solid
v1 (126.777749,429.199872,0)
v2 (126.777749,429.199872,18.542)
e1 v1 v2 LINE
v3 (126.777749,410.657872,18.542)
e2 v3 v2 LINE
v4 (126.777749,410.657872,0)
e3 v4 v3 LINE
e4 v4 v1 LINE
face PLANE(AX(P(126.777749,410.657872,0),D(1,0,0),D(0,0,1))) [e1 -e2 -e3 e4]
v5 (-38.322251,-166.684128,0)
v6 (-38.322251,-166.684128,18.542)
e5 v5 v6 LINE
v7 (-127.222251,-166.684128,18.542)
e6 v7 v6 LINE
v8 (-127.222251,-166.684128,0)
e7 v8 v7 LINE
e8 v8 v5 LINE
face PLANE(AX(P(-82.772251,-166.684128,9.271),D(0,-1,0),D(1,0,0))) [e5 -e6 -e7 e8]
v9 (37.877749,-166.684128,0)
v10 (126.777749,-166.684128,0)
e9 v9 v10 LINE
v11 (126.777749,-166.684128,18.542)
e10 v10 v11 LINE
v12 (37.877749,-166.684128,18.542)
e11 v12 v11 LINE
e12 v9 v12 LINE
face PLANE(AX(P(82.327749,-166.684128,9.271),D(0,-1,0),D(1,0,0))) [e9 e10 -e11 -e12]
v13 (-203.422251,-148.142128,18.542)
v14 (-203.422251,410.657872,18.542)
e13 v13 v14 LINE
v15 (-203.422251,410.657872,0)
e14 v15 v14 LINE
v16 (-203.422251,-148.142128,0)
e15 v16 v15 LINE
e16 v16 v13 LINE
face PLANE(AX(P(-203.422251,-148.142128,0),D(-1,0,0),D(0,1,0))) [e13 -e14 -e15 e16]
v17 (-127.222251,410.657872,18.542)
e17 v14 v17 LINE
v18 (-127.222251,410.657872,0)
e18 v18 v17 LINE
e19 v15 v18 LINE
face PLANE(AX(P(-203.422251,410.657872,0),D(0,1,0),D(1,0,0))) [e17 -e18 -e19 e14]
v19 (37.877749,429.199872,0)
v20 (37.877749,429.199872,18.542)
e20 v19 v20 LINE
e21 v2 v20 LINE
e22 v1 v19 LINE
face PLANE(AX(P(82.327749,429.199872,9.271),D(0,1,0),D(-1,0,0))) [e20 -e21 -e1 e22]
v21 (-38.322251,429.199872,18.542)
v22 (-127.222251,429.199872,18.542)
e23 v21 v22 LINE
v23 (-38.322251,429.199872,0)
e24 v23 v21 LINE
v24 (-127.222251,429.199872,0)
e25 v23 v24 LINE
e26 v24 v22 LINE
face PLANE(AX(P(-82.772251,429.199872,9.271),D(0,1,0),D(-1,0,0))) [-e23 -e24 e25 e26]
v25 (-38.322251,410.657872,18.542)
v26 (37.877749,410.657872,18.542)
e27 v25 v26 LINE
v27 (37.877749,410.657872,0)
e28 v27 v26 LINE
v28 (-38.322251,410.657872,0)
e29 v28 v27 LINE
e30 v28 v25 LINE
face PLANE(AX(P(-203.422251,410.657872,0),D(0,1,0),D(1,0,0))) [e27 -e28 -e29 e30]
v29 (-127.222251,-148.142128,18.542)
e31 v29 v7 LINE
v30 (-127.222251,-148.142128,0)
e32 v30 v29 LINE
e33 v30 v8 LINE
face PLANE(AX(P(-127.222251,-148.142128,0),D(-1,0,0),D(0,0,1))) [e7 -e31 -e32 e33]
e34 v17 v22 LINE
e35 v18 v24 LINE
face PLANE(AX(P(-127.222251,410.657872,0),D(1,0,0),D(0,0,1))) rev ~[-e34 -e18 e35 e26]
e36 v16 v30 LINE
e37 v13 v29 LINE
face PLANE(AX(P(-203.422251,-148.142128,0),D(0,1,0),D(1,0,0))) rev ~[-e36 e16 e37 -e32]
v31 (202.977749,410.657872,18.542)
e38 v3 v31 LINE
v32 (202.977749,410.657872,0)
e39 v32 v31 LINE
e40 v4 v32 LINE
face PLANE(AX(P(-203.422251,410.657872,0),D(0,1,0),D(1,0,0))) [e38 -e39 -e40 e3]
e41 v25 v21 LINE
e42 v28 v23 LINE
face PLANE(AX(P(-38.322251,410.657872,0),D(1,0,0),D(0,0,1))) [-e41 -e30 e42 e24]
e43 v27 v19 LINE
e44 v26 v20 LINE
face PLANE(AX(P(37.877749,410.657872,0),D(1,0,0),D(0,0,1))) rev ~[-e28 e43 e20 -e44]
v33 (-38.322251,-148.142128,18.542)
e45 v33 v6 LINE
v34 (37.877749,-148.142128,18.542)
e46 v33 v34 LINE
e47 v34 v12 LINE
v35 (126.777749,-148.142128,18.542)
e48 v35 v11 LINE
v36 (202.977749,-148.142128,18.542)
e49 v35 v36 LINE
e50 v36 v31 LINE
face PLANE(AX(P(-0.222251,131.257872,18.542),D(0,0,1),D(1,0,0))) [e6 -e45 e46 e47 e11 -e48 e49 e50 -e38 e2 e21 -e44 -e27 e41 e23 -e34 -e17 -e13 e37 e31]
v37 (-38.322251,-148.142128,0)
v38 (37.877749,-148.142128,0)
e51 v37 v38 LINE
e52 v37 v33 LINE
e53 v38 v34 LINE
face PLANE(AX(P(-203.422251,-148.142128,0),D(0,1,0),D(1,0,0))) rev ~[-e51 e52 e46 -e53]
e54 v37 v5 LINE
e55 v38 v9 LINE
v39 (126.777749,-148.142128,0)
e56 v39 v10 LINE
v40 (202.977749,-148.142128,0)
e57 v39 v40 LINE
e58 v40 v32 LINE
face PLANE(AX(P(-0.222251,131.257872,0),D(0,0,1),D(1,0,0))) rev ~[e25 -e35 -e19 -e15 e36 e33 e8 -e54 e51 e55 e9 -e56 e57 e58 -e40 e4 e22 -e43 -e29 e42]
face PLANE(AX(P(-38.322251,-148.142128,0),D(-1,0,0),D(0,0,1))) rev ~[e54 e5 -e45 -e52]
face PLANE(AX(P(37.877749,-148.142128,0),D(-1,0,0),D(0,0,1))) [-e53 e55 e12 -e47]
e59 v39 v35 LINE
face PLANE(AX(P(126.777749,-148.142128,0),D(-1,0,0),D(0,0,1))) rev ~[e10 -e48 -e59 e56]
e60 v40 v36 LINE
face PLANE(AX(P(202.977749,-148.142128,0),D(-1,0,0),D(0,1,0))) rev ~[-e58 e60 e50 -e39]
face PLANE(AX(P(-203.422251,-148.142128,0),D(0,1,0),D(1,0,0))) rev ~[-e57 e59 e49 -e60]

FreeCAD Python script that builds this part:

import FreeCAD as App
import Part
import Sketcher

V = App.Vector
Q = App.Units.Quantity

doc = App.newDocument("Part")
body = doc.addObject("PartDesign::Body", "Body")

# Sketch on XY plane
sketch1 = body.newObject("Sketcher::SketchObject", "Sketch")
sketch1.AttachmentSupport = (doc.getObject("XY_Plane"), [""])
sketch1.MapMode = "FlatFace"
sketch1.addGeometry([
    Part.LineSegment(V(-203, 411, 0), V(-203, -148, 0)),
    Part.LineSegment(V(-203, -148, 0), V(203, -148, 0)),
    Part.LineSegment(V(203, -148, 0), V(203, 411, 0)),
    Part.LineSegment(V(203, 411, 0), V(-203, 411, 0)),
], False)
sketch1.addConstraint([
    Sketcher.Constraint("Coincident", 0, 2, 1, 1),
    Sketcher.Constraint("Coincident", 1, 2, 2, 1),
    Sketcher.Constraint("Coincident", 2, 2, 3, 1),
    Sketcher.Constraint("Coincident", 3, 2, 0, 1),
    Sketcher.Constraint("Vertical", 0),
    Sketcher.Constraint("Horizontal", 1),
    Sketcher.Constraint("Vertical", 2),
    Sketcher.Constraint("Horizontal", 3),
    Sketcher.Constraint("DistanceX", 1, 1, 1, 2, Q("16 in")),
    Sketcher.Constraint("DistanceY", 0, 2, 0, 1, Q("22 in")),
    Sketcher.Constraint("DistanceX", 0, 2, -1, 1, Q("203.422251 mm")),
    Sketcher.Constraint("DistanceY", 0, 2, -1, 1, Q("148.142128 mm")),
])
pad1 = body.newObject("PartDesign::Pad", "Pad")
pad1.Profile = sketch1
pad1.Length = Q("0.73 in")

# Sketch on XZ plane
sketch2 = body.newObject("Sketcher::SketchObject", "Sketch001")
sketch2.AttachmentSupport = (doc.getObject("XZ_Plane"), [""])
sketch2.MapMode = "FlatFace"
sketch2.AttachmentOffset = App.Placement(V(0, 0, 148.142128), App.Rotation())
sketch2.addGeometry([
    Part.LineSegment(V(-127, 19, 0), V(-127, 0, 0)),  # 0
    Part.LineSegment(V(-127, 0, 0), V(-38, 0, 0)),  # 1
    Part.LineSegment(V(-38, 0, 0), V(-38, 19, 0)),  # 2
    Part.LineSegment(V(-38, 19, 0), V(-127, 19, 0)),  # 3
    Part.LineSegment(V(38, 19, 0), V(38, 0, 0)),  # 4
    Part.LineSegment(V(38, 0, 0), V(127, 0, 0)),  # 5
    Part.LineSegment(V(127, 0, 0), V(127, 19, 0)),  # 6
    Part.LineSegment(V(127, 19, 0), V(38, 19, 0)),  # 7
], False)
sketch2.addConstraint([
    Sketcher.Constraint("Coincident", 0, 2, 1, 1),
    Sketcher.Constraint("Coincident", 1, 2, 2, 1),
    Sketcher.Constraint("Coincident", 2, 2, 3, 1),
    Sketcher.Constraint("Coincident", 3, 2, 0, 1),
    Sketcher.Constraint("Coincident", 4, 2, 5, 1),
    Sketcher.Constraint("Coincident", 5, 2, 6, 1),
    Sketcher.Constraint("Coincident", 6, 2, 7, 1),
    Sketcher.Constraint("Coincident", 7, 2, 4, 1),
    Sketcher.Constraint("Vertical", 0),
    Sketcher.Constraint("Horizontal", 1),
    Sketcher.Constraint("Vertical", 2),
    Sketcher.Constraint("Horizontal", 3),
    Sketcher.Constraint("Vertical", 4),
    Sketcher.Constraint("Horizontal", 5),
    Sketcher.Constraint("Vertical", 6),
    Sketcher.Constraint("Horizontal", 7),
    Sketcher.Constraint("PointOnObject", 0, 2, -1),
    Sketcher.Constraint("PointOnObject", 4, 2, -1),
    Sketcher.Constraint("Horizontal", 3, 2, 6, 2),
    Sketcher.Constraint("Equal", 3, 5),
    Sketcher.Constraint("DistanceX", 1, 1, 1, 2, Q("3.5 in")),
    Sketcher.Constraint("DistanceX", 1, 2, 4, 2, Q("3 in")),
    Sketcher.Constraint("DistanceY", 0, 2, 0, 1, Q("0.73 in")),
    Sketcher.Constraint("DistanceX", 0, 2, -1, 1, Q("127.222251 mm")),
])
pad2 = body.newObject("PartDesign::Pad", "Pad001")
pad2.Profile = sketch2
pad2.Length = Q("0.73 in")

# Sketch on XZ plane
sketch3 = body.newObject("Sketcher::SketchObject", "Sketch002")
sketch3.AttachmentSupport = (doc.getObject("XZ_Plane"), [""])
sketch3.MapMode = "FlatFace"
sketch3.AttachmentOffset = App.Placement(V(0, 0, -410.657872), App.Rotation())
sketch3.addGeometry([
    Part.LineSegment(V(127, 19, 0), V(127, 0, 0)),  # 0
    Part.LineSegment(V(127, 0, 0), V(38, 0, 0)),  # 1
    Part.LineSegment(V(38, 0, 0), V(38, 19, 0)),  # 2
    Part.LineSegment(V(38, 19, 0), V(127, 19, 0)),  # 3
    Part.LineSegment(V(-38, 19, 0), V(-38, 0, 0)),  # 4
    Part.LineSegment(V(-38, 0, 0), V(-127, 0, 0)),  # 5
    Part.LineSegment(V(-127, 0, 0), V(-127, 19, 0)),  # 6
    Part.LineSegment(V(-127, 19, 0), V(-38, 19, 0)),  # 7
], False)
sketch3.addConstraint([
    Sketcher.Constraint("Coincident", 0, 2, 1, 1),
    Sketcher.Constraint("Coincident", 1, 2, 2, 1),
    Sketcher.Constraint("Coincident", 2, 2, 3, 1),
    Sketcher.Constraint("Coincident", 3, 2, 0, 1),
    Sketcher.Constraint("Coincident", 4, 2, 5, 1),
    Sketcher.Constraint("Coincident", 5, 2, 6, 1),
    Sketcher.Constraint("Coincident", 6, 2, 7, 1),
    Sketcher.Constraint("Coincident", 7, 2, 4, 1),
    Sketcher.Constraint("Vertical", 0),
    Sketcher.Constraint("Horizontal", 1),
    Sketcher.Constraint("Vertical", 2),
    Sketcher.Constraint("Horizontal", 3),
    Sketcher.Constraint("Vertical", 4),
    Sketcher.Constraint("Horizontal", 5),
    Sketcher.Constraint("Vertical", 6),
    Sketcher.Constraint("Horizontal", 7),
    Sketcher.Constraint("PointOnObject", 0, 2, -1),
    Sketcher.Constraint("PointOnObject", 4, 2, -1),
    Sketcher.Constraint("Horizontal", 3, 2, 6, 2),
    Sketcher.Constraint("Equal", 3, 5),
    Sketcher.Constraint("DistanceX", 1, 2, 1, 1, Q("3.5 in")),
    Sketcher.Constraint("DistanceX", 4, 2, 1, 2, Q("3 in")),
    Sketcher.Constraint("DistanceY", 0, 2, 0, 1, Q("0.73 in")),
    Sketcher.Constraint("DistanceX", -1, 1, 0, 2, Q("126.777749 mm")),
])
pad3 = body.newObject("PartDesign::Pad", "Pad002")
pad3.Profile = sketch3
pad3.Length = Q("0.73 in")
pad3.Reversed = True

doc.recompute()
